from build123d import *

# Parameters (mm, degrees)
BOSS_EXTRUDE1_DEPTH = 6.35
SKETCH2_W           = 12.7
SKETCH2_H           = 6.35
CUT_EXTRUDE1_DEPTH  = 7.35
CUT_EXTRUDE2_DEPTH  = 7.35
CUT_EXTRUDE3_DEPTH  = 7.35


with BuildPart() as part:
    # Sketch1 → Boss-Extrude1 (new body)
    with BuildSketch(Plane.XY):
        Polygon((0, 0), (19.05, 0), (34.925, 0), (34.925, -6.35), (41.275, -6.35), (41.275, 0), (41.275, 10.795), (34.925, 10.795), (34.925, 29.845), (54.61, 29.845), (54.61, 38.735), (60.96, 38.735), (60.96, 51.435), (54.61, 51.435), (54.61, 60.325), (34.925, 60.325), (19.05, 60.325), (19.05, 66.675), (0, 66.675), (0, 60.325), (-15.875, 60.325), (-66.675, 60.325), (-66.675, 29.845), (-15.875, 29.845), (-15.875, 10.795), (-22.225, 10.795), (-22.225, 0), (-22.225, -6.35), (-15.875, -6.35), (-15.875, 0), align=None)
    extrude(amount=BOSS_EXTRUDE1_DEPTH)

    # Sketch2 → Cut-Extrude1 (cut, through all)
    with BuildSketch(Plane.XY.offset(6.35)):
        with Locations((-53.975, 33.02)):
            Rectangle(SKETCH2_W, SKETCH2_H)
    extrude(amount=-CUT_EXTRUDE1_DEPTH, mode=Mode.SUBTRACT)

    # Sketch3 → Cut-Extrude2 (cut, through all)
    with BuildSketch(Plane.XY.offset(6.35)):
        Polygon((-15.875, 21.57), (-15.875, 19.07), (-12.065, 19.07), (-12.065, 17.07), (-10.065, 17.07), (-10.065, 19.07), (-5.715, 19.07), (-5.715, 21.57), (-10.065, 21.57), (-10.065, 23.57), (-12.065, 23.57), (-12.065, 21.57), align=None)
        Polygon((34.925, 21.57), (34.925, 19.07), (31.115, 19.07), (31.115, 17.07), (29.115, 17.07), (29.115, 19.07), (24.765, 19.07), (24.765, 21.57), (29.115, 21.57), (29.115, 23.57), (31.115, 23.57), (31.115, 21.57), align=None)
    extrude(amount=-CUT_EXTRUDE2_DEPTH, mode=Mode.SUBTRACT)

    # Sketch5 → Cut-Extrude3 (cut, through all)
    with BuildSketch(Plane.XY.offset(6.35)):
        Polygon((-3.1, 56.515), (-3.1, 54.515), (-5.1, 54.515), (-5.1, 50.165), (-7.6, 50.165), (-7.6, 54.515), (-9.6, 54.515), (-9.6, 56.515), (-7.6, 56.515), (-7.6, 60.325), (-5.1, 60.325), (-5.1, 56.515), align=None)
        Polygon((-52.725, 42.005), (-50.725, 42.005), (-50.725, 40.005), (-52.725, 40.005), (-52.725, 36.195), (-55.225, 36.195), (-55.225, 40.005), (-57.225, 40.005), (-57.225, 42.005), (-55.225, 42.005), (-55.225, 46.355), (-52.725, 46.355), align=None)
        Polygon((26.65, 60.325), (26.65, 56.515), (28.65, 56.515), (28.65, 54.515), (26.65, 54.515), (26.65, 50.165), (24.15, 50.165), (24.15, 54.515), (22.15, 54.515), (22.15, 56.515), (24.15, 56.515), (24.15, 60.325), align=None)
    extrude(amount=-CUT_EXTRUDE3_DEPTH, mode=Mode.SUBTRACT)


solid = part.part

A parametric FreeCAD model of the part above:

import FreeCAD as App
import Part
import Sketcher
from FreeCAD import Vector
Q = App.Units.Quantity

doc = App.newDocument("Part")
params = doc.addObject("Spreadsheet::Sheet", "Params")
for row, (alias, value) in enumerate([
    ("sketch1_width", "2 in"),
    ("sketch1_width2", "1.4 in"),
    ("sketch1_height", "0.5 in"),
    ("sketch1_height2", "1.2 in"),
    ("sketch1_width3", "0.25 in"),
    ("pad1_length", "0.25 in"),
    ("sketch2_width", "0.5 in"),
    ("sketch2_height", "0.25 in"),
    ("sketch3_width", "0.15 in"),
    ("sketch4_height", "0.15 in"),
], start=1):
    params.set(f"A{row}", alias)
    params.set(f"B{row}", "=" + value)
    params.setAlias(f"B{row}", alias)

body = doc.addObject("PartDesign::Body", "Body")

sketch1 = body.newObject("Sketcher::SketchObject", "Sketch")
sketch1.AttachmentSupport = (doc.getObject("XY_Plane"), [""])
sketch1.MapMode = "FlatFace"
sketch1.addGeometry([
    Part.LineSegment(Vector(35, 0, 0), Vector(35, -6, 0)),
    Part.LineSegment(Vector(35, -6, 0), Vector(41, -6, 0)),
    Part.LineSegment(Vector(41, -6, 0), Vector(41, 11, 0)),
    Part.LineSegment(Vector(41, 11, 0), Vector(35, 11, 0)),
    Part.LineSegment(Vector(35, 11, 0), Vector(35, 30, 0)),
    Part.LineSegment(Vector(35, 30, 0), Vector(55, 30, 0)),
    Part.LineSegment(Vector(55, 30, 0), Vector(55, 39, 0)),
    Part.LineSegment(Vector(55, 39, 0), Vector(61, 39, 0)),
    Part.LineSegment(Vector(61, 39, 0), Vector(61, 51, 0)),
    Part.LineSegment(Vector(61, 51, 0), Vector(55, 51, 0)),
    Part.LineSegment(Vector(55, 51, 0), Vector(55, 60, 0)),
    Part.LineSegment(Vector(55, 60, 0), Vector(19, 60, 0)),
    Part.LineSegment(Vector(19, 60, 0), Vector(19, 67, 0)),
    Part.LineSegment(Vector(19, 67, 0), Vector(0, 67, 0)),
    Part.LineSegment(Vector(0, 67, 0), Vector(0, 60, 0)),
    Part.LineSegment(Vector(0, 60, 0), Vector(-67, 60, 0)),
    Part.LineSegment(Vector(-67, 60, 0), Vector(-67, 30, 0)),
    Part.LineSegment(Vector(-67, 30, 0), Vector(-16, 30, 0)),
    Part.LineSegment(Vector(-16, 30, 0), Vector(-16, 11, 0)),
    Part.LineSegment(Vector(-16, 11, 0), Vector(-22, 11, 0)),
    Part.LineSegment(Vector(-22, 11, 0), Vector(-22, -6, 0)),
    Part.LineSegment(Vector(-22, -6, 0), Vector(-16, -6, 0)),
    Part.LineSegment(Vector(-16, -6, 0), Vector(-16, 0, 0)),
    Part.LineSegment(Vector(-16, 0, 0), Vector(35, 0, 0)),
], False)
sketch1.addConstraint([
    Sketcher.Constraint("Coincident", 0, 2, 1, 1),
    Sketcher.Constraint("Coincident", 1, 2, 2, 1),
    Sketcher.Constraint("Coincident", 2, 2, 3, 1),
    Sketcher.Constraint("Coincident", 3, 2, 4, 1),
    Sketcher.Constraint("Coincident", 4, 2, 5, 1),
    Sketcher.Constraint("Coincident", 5, 2, 6, 1),
    Sketcher.Constraint("Coincident", 6, 2, 7, 1),
    Sketcher.Constraint("Coincident", 7, 2, 8, 1),
    Sketcher.Constraint("Coincident", 8, 2, 9, 1),
    Sketcher.Constraint("Coincident", 9, 2, 10, 1),
    Sketcher.Constraint("Coincident", 10, 2, 11, 1),
    Sketcher.Constraint("Coincident", 11, 2, 12, 1),
    Sketcher.Constraint("Coincident", 12, 2, 13, 1),
    Sketcher.Constraint("Coincident", 13, 2, 14, 1),
    Sketcher.Constraint("Coincident", 14, 2, 15, 1),
    Sketcher.Constraint("Coincident", 15, 2, 16, 1),
    Sketcher.Constraint("Coincident", 16, 2, 17, 1),
    Sketcher.Constraint("Coincident", 17, 2, 18, 1),
    Sketcher.Constraint("Coincident", 18, 2, 19, 1),
    Sketcher.Constraint("Coincident", 19, 2, 20, 1),
    Sketcher.Constraint("Coincident", 20, 2, 21, 1),
    Sketcher.Constraint("Coincident", 21, 2, 22, 1),
    Sketcher.Constraint("Coincident", 22, 2, 23, 1),
    Sketcher.Constraint("Coincident", 23, 2, 0, 1),
    Sketcher.Constraint("Vertical", 0),
    Sketcher.Constraint("Horizontal", 1),
    Sketcher.Constraint("Vertical", 2),
    Sketcher.Constraint("Horizontal", 3),
    Sketcher.Constraint("Vertical", 4),
    Sketcher.Constraint("Horizontal", 5),
    Sketcher.Constraint("Vertical", 6),
    Sketcher.Constraint("Horizontal", 7),
    Sketcher.Constraint("Vertical", 8),
    Sketcher.Constraint("Horizontal", 9),
    Sketcher.Constraint("Vertical", 10),
    Sketcher.Constraint("Horizontal", 11),
    Sketcher.Constraint("Vertical", 12),
    Sketcher.Constraint("Horizontal", 13),
    Sketcher.Constraint("Vertical", 14),
    Sketcher.Constraint("Horizontal", 15),
    Sketcher.Constraint("Vertical", 16),
    Sketcher.Constraint("Horizontal", 17),
    Sketcher.Constraint("Vertical", 18),
    Sketcher.Constraint("Horizontal", 19),
    Sketcher.Constraint("Vertical", 20),
    Sketcher.Constraint("Horizontal", 21),
    Sketcher.Constraint("Vertical", 22),
    Sketcher.Constraint("Horizontal", 23),
    Sketcher.Constraint("PointOnObject", 13, 2, -2),
    Sketcher.Constraint("PointOnObject", 22, 2, -1),
    Sketcher.Constraint("Horizontal", 11, 2, 14, 2),
    Sketcher.Constraint("Horizontal", 5, 2, 16, 2),
    Sketcher.Constraint("Horizontal", 3, 2, 18, 2),
    Sketcher.Constraint("Horizontal", 1, 2, 20, 2),
    Sketcher.Constraint("Vertical", 0, 2, 3, 2),
    Sketcher.Constraint("Vertical", 6, 2, 9, 2),
    Sketcher.Constraint("Vertical", 18, 2, 21, 2),
    Sketcher.Constraint("Equal", 3, 7),
    Sketcher.Constraint("Equal", 9, 19),
    Sketcher.Constraint("Equal", 17, 23),
    Sketcher.Constraint("Equal", 21, 0),
    Sketcher.Constraint("Equal", 13, 4),
    Sketcher.Constraint("Equal", 6, 10),
    Sketcher.Constraint("Equal", 0, 12),
    Sketcher.Constraint("DistanceX", 17, 1, 17, 2, Q("2 in")),
    Sketcher.Constraint("DistanceX", 11, 2, 11, 1, Q("1.4 in")),
    Sketcher.Constraint("DistanceY", 8, 1, 8, 2, Q("0.5 in")),
    Sketcher.Constraint("DistanceY", 16, 2, 16, 1, Q("1.2 in")),
    Sketcher.Constraint("DistanceX", 1, 1, 1, 2, Q("0.25 in")),
    Sketcher.Constraint("DistanceX", 13, 2, 13, 1, Q("0.75 in")),
    Sketcher.Constraint("DistanceX", 5, 1, 5, 2, Q("0.775 in")),
    Sketcher.Constraint("DistanceY", 2, 1, 2, 2, Q("0.675 in")),
])
sketch1.setExpression("Constraints[64]", "Params.sketch1_width")
sketch1.setExpression("Constraints[65]", "Params.sketch1_width2")
sketch1.setExpression("Constraints[66]", "Params.sketch1_height")
sketch1.setExpression("Constraints[67]", "Params.sketch1_height2")
sketch1.setExpression("Constraints[68]", "Params.sketch1_width3")
pad1 = body.newObject("PartDesign::Pad", "Pad")
pad1.Profile = sketch1
pad1.setExpression("Length", "Params.pad1_length")

sketch2 = body.newObject("Sketcher::SketchObject", "Sketch001")
sketch2.AttachmentSupport = (doc.getObject("XY_Plane"), [""])
sketch2.MapMode = "FlatFace"
sketch2.AttachmentOffset = App.Placement(Vector(0, 0, 0.25 * 25.4), App.Rotation())
sketch2.addGeometry([
    Part.LineSegment(Vector(-60, 36, 0), Vector(-60, 30, 0)),
    Part.LineSegment(Vector(-60, 30, 0), Vector(-48, 30, 0)),
    Part.LineSegment(Vector(-48, 30, 0), Vector(-48, 36, 0)),
    Part.LineSegment(Vector(-48, 36, 0), Vector(-60, 36, 0)),
], False)
sketch2.addConstraint([
    Sketcher.Constraint("Coincident", 0, 2, 1, 1),
    Sketcher.Constraint("Coincident", 1, 2, 2, 1),
    Sketcher.Constraint("Coincident", 2, 2, 3, 1),
    Sketcher.Constraint("Coincident", 3, 2, 0, 1),
    Sketcher.Constraint("Vertical", 0),
    Sketcher.Constraint("Horizontal", 1),
    Sketcher.Constraint("Vertical", 2),
    Sketcher.Constraint("Horizontal", 3),
    Sketcher.Constraint("DistanceX", 1, 1, 1, 2, Q("0.5 in")),
    Sketcher.Constraint("DistanceY", 0, 2, 0, 1, Q("0.25 in")),
    Sketcher.Constraint("DistanceX", 0, 2, -1, 1, Q("2.375 in")),
    Sketcher.Constraint("DistanceY", -1, 1, 0, 2, Q("1.175 in")),
])
sketch2.setExpression("Constraints[8]", "Params.sketch2_width")
sketch2.setExpression("Constraints[9]", "Params.sketch2_height")
pocket1 = body.newObject("PartDesign::Pocket", "Pocket")
pocket1.Profile = sketch2
pocket1.Type = "ThroughAll"

sketch3 = body.newObject("Sketcher::SketchObject", "Sketch002")
sketch3.AttachmentSupport = (doc.getObject("XY_Plane"), [""])
sketch3.MapMode = "FlatFace"
sketch3.AttachmentOffset = App.Placement(Vector(0, 0, 0.25 * 25.4), App.Rotation())
sketch3.addGeometry([
    Part.LineSegment(Vector(-15.9, 21.6, 0), Vector(-15.9, 19.1, 0)),
    Part.LineSegment(Vector(-15.9, 19.1, 0), Vector(-12.1, 19.1, 0)),
    Part.LineSegment(Vector(-12.1, 19.1, 0), Vector(-12.1, 17.1, 0)),
    Part.LineSegment(Vector(-12.1, 17.1, 0), Vector(-10.1, 17.1, 0)),
    Part.LineSegment(Vector(-10.1, 17.1, 0), Vector(-10.1, 19.1, 0)),
    Part.LineSegment(Vector(-10.1, 19.1, 0), Vector(-5.7, 19.1, 0)),
    Part.LineSegment(Vector(-5.7, 19.1, 0), Vector(-5.7, 21.6, 0)),
    Part.LineSegment(Vector(-5.7, 21.6, 0), Vector(-10.1, 21.6, 0)),
    Part.LineSegment(Vector(-10.1, 21.6, 0), Vector(-10.1, 23.6, 0)),
    Part.LineSegment(Vector(-10.1, 23.6, 0), Vector(-12.1, 23.6, 0)),
    Part.LineSegment(Vector(-12.1, 23.6, 0), Vector(-12.1, 21.6, 0)),
    Part.LineSegment(Vector(-12.1, 21.6, 0), Vector(-15.9, 21.6, 0)),
    Part.LineSegment(Vector(34.9, 19.1, 0), Vector(34.9, 21.6, 0)),
    Part.LineSegment(Vector(34.9, 21.6, 0), Vector(31.1, 21.6, 0)),
    Part.LineSegment(Vector(31.1, 21.6, 0), Vector(31.1, 23.6, 0)),
    Part.LineSegment(Vector(31.1, 23.6, 0), Vector(29.1, 23.6, 0)),
    Part.LineSegment(Vector(29.1, 23.6, 0), Vector(29.1, 21.6, 0)),
    Part.LineSegment(Vector(29.1, 21.6, 0), Vector(24.8, 21.6, 0)),
    Part.LineSegment(Vector(24.8, 21.6, 0), Vector(24.8, 19.1, 0)),
    Part.LineSegment(Vector(24.8, 19.1, 0), Vector(29.1, 19.1, 0)),
    Part.LineSegment(Vector(29.1, 19.1, 0), Vector(29.1, 17.1, 0)),
    Part.LineSegment(Vector(29.1, 17.1, 0), Vector(31.1, 17.1, 0)),
    Part.LineSegment(Vector(31.1, 17.1, 0), Vector(31.1, 19.1, 0)),
    Part.LineSegment(Vector(31.1, 19.1, 0), Vector(34.9, 19.1, 0)),
], False)
sketch3.addConstraint([
    Sketcher.Constraint("Coincident", 0, 2, 1, 1),
    Sketcher.Constraint("Coincident", 1, 2, 2, 1),
    Sketcher.Constraint("Coincident", 2, 2, 3, 1),
    Sketcher.Constraint("Coincident", 3, 2, 4, 1),
    Sketcher.Constraint("Coincident", 4, 2, 5, 1),
    Sketcher.Constraint("Coincident", 5, 2, 6, 1),
    Sketcher.Constraint("Coincident", 6, 2, 7, 1),
    Sketcher.Constraint("Coincident", 7, 2, 8, 1),
    Sketcher.Constraint("Coincident", 8, 2, 9, 1),
    Sketcher.Constraint("Coincident", 9, 2, 10, 1),
    Sketcher.Constraint("Coincident", 10, 2, 11, 1),
    Sketcher.Constraint("Coincident", 11, 2, 0, 1),
    Sketcher.Constraint("Coincident", 12, 2, 13, 1),
    Sketcher.Constraint("Coincident", 13, 2, 14, 1),
    Sketcher.Constraint("Coincident", 14, 2, 15, 1),
    Sketcher.Constraint("Coincident", 15, 2, 16, 1),
    Sketcher.Constraint("Coincident", 16, 2, 17, 1),
    Sketcher.Constraint("Coincident", 17, 2, 18, 1),
    Sketcher.Constraint("Coincident", 18, 2, 19, 1),
    Sketcher.Constraint("Coincident", 19, 2, 20, 1),
    Sketcher.Constraint("Coincident", 20, 2, 21, 1),
    Sketcher.Constraint("Coincident", 21, 2, 22, 1),
    Sketcher.Constraint("Coincident", 22, 2, 23, 1),
    Sketcher.Constraint("Coincident", 23, 2, 12, 1),
    Sketcher.Constraint("Vertical", 0),
    Sketcher.Constraint("Horizontal", 1),
    Sketcher.Constraint("Vertical", 2),
    Sketcher.Constraint("Horizontal", 3),
    Sketcher.Constraint("Vertical", 4),
    Sketcher.Constraint("Horizontal", 5),
    Sketcher.Constraint("Vertical", 6),
    Sketcher.Constraint("Horizontal", 7),
    Sketcher.Constraint("Vertical", 8),
    Sketcher.Constraint("Horizontal", 9),
    Sketcher.Constraint("Vertical", 10),
    Sketcher.Constraint("Horizontal", 11),
    Sketcher.Constraint("Vertical", 12),
    Sketcher.Constraint("Horizontal", 13),
    Sketcher.Constraint("Vertical", 14),
    Sketcher.Constraint("Horizontal", 15),
    Sketcher.Constraint("Vertical", 16),
    Sketcher.Constraint("Horizontal", 17),
    Sketcher.Constraint("Vertical", 18),
    Sketcher.Constraint("Horizontal", 19),
    Sketcher.Constraint("Vertical", 20),
    Sketcher.Constraint("Horizontal", 21),
    Sketcher.Constraint("Vertical", 22),
    Sketcher.Constraint("Horizontal", 23),
    Sketcher.Constraint("Horizontal", 1, 2, 4, 2),
    Sketcher.Constraint("Horizontal", 7, 2, 10, 2),
    Sketcher.Constraint("Horizontal", 11, 2, 12, 2),
    Sketcher.Constraint("Horizontal", 9, 2, 14, 2),
    Sketcher.Constraint("Horizontal", 13, 2, 16, 2),
    Sketcher.Constraint("Horizontal", 5, 2, 18, 2),
    Sketcher.Constraint("Horizontal", 3, 2, 20, 2),
    Sketcher.Constraint("Horizontal", 19, 2, 22, 2),
    Sketcher.Constraint("Vertical", 4, 2, 7, 2),
    Sketcher.Constraint("Vertical", 2, 2, 9, 2),
    Sketcher.Constraint("Vertical", 16, 2, 19, 2),
    Sketcher.Constraint("Vertical", 14, 2, 21, 2),
    Sketcher.Constraint("Equal", 11, 13),
    Sketcher.Constraint("Equal", 9, 15),
    Sketcher.Constraint("Equal", 7, 17),
    Sketcher.Constraint("Equal", 21, 2),
    Sketcher.Constraint("Equal", 4, 8),
    Sketcher.Constraint("DistanceX", 1, 1, 1, 2, Q("0.15 in")),
    Sketcher.Constraint("DistanceX", 0, 2, 5, 2, Q("0.4 in")),
    Sketcher.Constraint("DistanceX", 6, 2, 12, 2, Q("1.6 in")),
    Sketcher.Constraint("DistanceX", 0, 2, -1, 1, Q("0.625 in")),
    Sketcher.Constraint("DistanceX", 3, 1, 3, 2, 2.0),
    Sketcher.Constraint("DistanceY", 0, 2, 0, 1, 2.5),
    Sketcher.Constraint("DistanceY", -1, 1, 0, 2, 19.07),
])
sketch3.setExpression("Constraints[65]", "Params.sketch3_width")
pocket2 = body.newObject("PartDesign::Pocket", "Pocket001")
pocket2.Profile = sketch3
pocket2.Type = "ThroughAll"

sketch4 = body.newObject("Sketcher::SketchObject", "Sketch003")
sketch4.AttachmentSupport = (doc.getObject("XY_Plane"), [""])
sketch4.MapMode = "FlatFace"
sketch4.AttachmentOffset = App.Placement(Vector(0, 0, 0.25 * 25.4), App.Rotation())
sketch4.addGeometry([
    Part.LineSegment(Vector(-3.1, 54.5, 0), Vector(-3.1, 56.5, 0)),
    Part.LineSegment(Vector(-3.1, 56.5, 0), Vector(-5.1, 56.5, 0)),
    Part.LineSegment(Vector(-5.1, 56.5, 0), Vector(-5.1, 60.3, 0)),
    Part.LineSegment(Vector(-5.1, 60.3, 0), Vector(-7.6, 60.3, 0)),
    Part.LineSegment(Vector(-7.6, 60.3, 0), Vector(-7.6, 56.5, 0)),
    Part.LineSegment(Vector(-7.6, 56.5, 0), Vector(-9.6, 56.5, 0)),
    Part.LineSegment(Vector(-9.6, 56.5, 0), Vector(-9.6, 54.5, 0)),
    Part.LineSegment(Vector(-9.6, 54.5, 0), Vector(-7.6, 54.5, 0)),
    Part.LineSegment(Vector(-7.6, 54.5, 0), Vector(-7.6, 50.2, 0)),
    Part.LineSegment(Vector(-7.6, 50.2, 0), Vector(-5.1, 50.2, 0)),
    Part.LineSegment(Vector(-5.1, 50.2, 0), Vector(-5.1, 54.5, 0)),
    Part.LineSegment(Vector(-5.1, 54.5, 0), Vector(-3.1, 54.5, 0)),
    Part.LineSegment(Vector(-50.7, 42, 0), Vector(-52.7, 42, 0)),
    Part.LineSegment(Vector(-52.7, 42, 0), Vector(-52.7, 46.4, 0)),
    Part.LineSegment(Vector(-52.7, 46.4, 0), Vector(-55.2, 46.4, 0)),
    Part.LineSegment(Vector(-55.2, 46.4, 0), Vector(-55.2, 42, 0)),
    Part.LineSegment(Vector(-55.2, 42, 0), Vector(-57.2, 42, 0)),
    Part.LineSegment(Vector(-57.2, 42, 0), Vector(-57.2, 40, 0)),
    Part.LineSegment(Vector(-57.2, 40, 0), Vector(-55.2, 40, 0)),
    Part.LineSegment(Vector(-55.2, 40, 0), Vector(-55.2, 36.2, 0)),
    Part.LineSegment(Vector(-55.2, 36.2, 0), Vector(-52.7, 36.2, 0)),
    Part.LineSegment(Vector(-52.7, 36.2, 0), Vector(-52.7, 40, 0)),
    Part.LineSegment(Vector(-52.7, 40, 0), Vector(-50.7, 40, 0)),
    Part.LineSegment(Vector(-50.7, 40, 0), Vector(-50.7, 42, 0)),
    Part.LineSegment(Vector(26.6, 56.5, 0), Vector(26.6, 60.3, 0)),
    Part.LineSegment(Vector(26.6, 60.3, 0), Vector(24.1, 60.3, 0)),
    Part.LineSegment(Vector(24.1, 60.3, 0), Vector(24.1, 56.5, 0)),
    Part.LineSegment(Vector(24.1, 56.5, 0), Vector(22.1, 56.5, 0)),
    Part.LineSegment(Vector(22.1, 56.5, 0), Vector(22.1, 54.5, 0)),
    Part.LineSegment(Vector(22.1, 54.5, 0), Vector(24.1, 54.5, 0)),
    Part.LineSegment(Vector(24.1, 54.5, 0), Vector(24.1, 50.2, 0)),
    Part.LineSegment(Vector(24.1, 50.2, 0), Vector(26.6, 50.2, 0)),
    Part.LineSegment(Vector(26.6, 50.2, 0), Vector(26.6, 54.5, 0)),
    Part.LineSegment(Vector(26.6, 54.5, 0), Vector(28.6, 54.5, 0)),
    Part.LineSegment(Vector(28.6, 54.5, 0), Vector(28.6, 56.5, 0)),
    Part.LineSegment(Vector(28.6, 56.5, 0), Vector(26.6, 56.5, 0)),
], False)
sketch4.addConstraint([
    Sketcher.Constraint("Coincident", 0, 2, 1, 1),
    Sketcher.Constraint("Coincident", 1, 2, 2, 1),
    Sketcher.Constraint("Coincident", 2, 2, 3, 1),
    Sketcher.Constraint("Coincident", 3, 2, 4, 1),
    Sketcher.Constraint("Coincident", 4, 2, 5, 1),
    Sketcher.Constraint("Coincident", 5, 2, 6, 1),
    Sketcher.Constraint("Coincident", 6, 2, 7, 1),
    Sketcher.Constraint("Coincident", 7, 2, 8, 1),
    Sketcher.Constraint("Coincident", 8, 2, 9, 1),
    Sketcher.Constraint("Coincident", 9, 2, 10, 1),
    Sketcher.Constraint("Coincident", 10, 2, 11, 1),
    Sketcher.Constraint("Coincident", 11, 2, 0, 1),
    Sketcher.Constraint("Coincident", 12, 2, 13, 1),
    Sketcher.Constraint("Coincident", 13, 2, 14, 1),
    Sketcher.Constraint("Coincident", 14, 2, 15, 1),
    Sketcher.Constraint("Coincident", 15, 2, 16, 1),
    Sketcher.Constraint("Coincident", 16, 2, 17, 1),
    Sketcher.Constraint("Coincident", 17, 2, 18, 1),
    Sketcher.Constraint("Coincident", 18, 2, 19, 1),
    Sketcher.Constraint("Coincident", 19, 2, 20, 1),
    Sketcher.Constraint("Coincident", 20, 2, 21, 1),
    Sketcher.Constraint("Coincident", 21, 2, 22, 1),
    Sketcher.Constraint("Coincident", 22, 2, 23, 1),
    Sketcher.Constraint("Coincident", 23, 2, 12, 1),
    Sketcher.Constraint("Coincident", 24, 2, 25, 1),
    Sketcher.Constraint("Coincident", 25, 2, 26, 1),
    Sketcher.Constraint("Coincident", 26, 2, 27, 1),
    Sketcher.Constraint("Coincident", 27, 2, 28, 1),
    Sketcher.Constraint("Coincident", 28, 2, 29, 1),
    Sketcher.Constraint("Coincident", 29, 2, 30, 1),
    Sketcher.Constraint("Coincident", 30, 2, 31, 1),
    Sketcher.Constraint("Coincident", 31, 2, 32, 1),
    Sketcher.Constraint("Coincident", 32, 2, 33, 1),
    Sketcher.Constraint("Coincident", 33, 2, 34, 1),
    Sketcher.Constraint("Coincident", 34, 2, 35, 1),
    Sketcher.Constraint("Coincident", 35, 2, 24, 1),
    Sketcher.Constraint("Vertical", 0),
    Sketcher.Constraint("Horizontal", 1),
    Sketcher.Constraint("Vertical", 2),
    Sketcher.Constraint("Horizontal", 3),
    Sketcher.Constraint("Vertical", 4),
    Sketcher.Constraint("Horizontal", 5),
    Sketcher.Constraint("Vertical", 6),
    Sketcher.Constraint("Horizontal", 7),
    Sketcher.Constraint("Vertical", 8),
    Sketcher.Constraint("Horizontal", 9),
    Sketcher.Constraint("Vertical", 10),
    Sketcher.Constraint("Horizontal", 11),
    Sketcher.Constraint("Horizontal", 12),
    Sketcher.Constraint("Vertical", 13),
    Sketcher.Constraint("Horizontal", 14),
    Sketcher.Constraint("Vertical", 15),
    Sketcher.Constraint("Horizontal", 16),
    Sketcher.Constraint("Vertical", 17),
    Sketcher.Constraint("Horizontal", 18),
    Sketcher.Constraint("Vertical", 19),
    Sketcher.Constraint("Horizontal", 20),
    Sketcher.Constraint("Vertical", 21),
    Sketcher.Constraint("Horizontal", 22),
    Sketcher.Constraint("Vertical", 23),
    Sketcher.Constraint("Vertical", 24),
    Sketcher.Constraint("Horizontal", 25),
    Sketcher.Constraint("Vertical", 26),
    Sketcher.Constraint("Horizontal", 27),
    Sketcher.Constraint("Vertical", 28),
    Sketcher.Constraint("Horizontal", 29),
    Sketcher.Constraint("Vertical", 30),
    Sketcher.Constraint("Horizontal", 31),
    Sketcher.Constraint("Vertical", 32),
    Sketcher.Constraint("Horizontal", 33),
    Sketcher.Constraint("Vertical", 34),
    Sketcher.Constraint("Horizontal", 35),
    Sketcher.Constraint("Horizontal", 1, 2, 4, 2),
    Sketcher.Constraint("Horizontal", 7, 2, 10, 2),
    Sketcher.Constraint("Horizontal", 12, 2, 15, 2),
    Sketcher.Constraint("Horizontal", 18, 2, 21, 2),
    Sketcher.Constraint("Horizontal", 3, 2, 24, 2),
    Sketcher.Constraint("Horizontal", 5, 2, 26, 2),
    Sketcher.Constraint("Horizontal", 11, 2, 28, 2),
    Sketcher.Constraint("Horizontal", 9, 2, 30, 2),
    Sketcher.Constraint("Horizontal", 29, 2, 32, 2),
    Sketcher.Constraint("Horizontal", 27, 2, 34, 2),
    Sketcher.Constraint("Vertical", 4, 2, 7, 2),
    Sketcher.Constraint("Vertical", 2, 2, 9, 2),
    Sketcher.Constraint("Vertical", 15, 2, 18, 2),
    Sketcher.Constraint("Vertical", 13, 2, 20, 2),
    Sketcher.Constraint("Vertical", 26, 2, 29, 2),
    Sketcher.Constraint("Vertical", 24, 2, 31, 2),
    Sketcher.Constraint("Equal", 1, 5),
    Sketcher.Constraint("Equal", 11, 12),
    Sketcher.Constraint("Equal", 9, 14),
    Sketcher.Constraint("Equal", 12, 16),
    Sketcher.Constraint("Equal", 20, 25),
    Sketcher.Constraint("Equal", 22, 27),
    Sketcher.Constraint("Equal", 29, 33),
    Sketcher.Constraint("Equal", 35, 0),
    Sketcher.Constraint("Equal", 10, 13),
    Sketcher.Constraint("Equal", 6, 17),
    Sketcher.Constraint("Equal", 4, 19),
    Sketcher.Constraint("DistanceY", 2, 1, 2, 2, Q("0.15 in")),
    Sketcher.Constraint("DistanceY", 13, 2, 5, 2, Q("0.4 in")),
    Sketcher.Constraint("DistanceY", 30, 2, 25, 2, Q("0.4 in")),
    Sketcher.Constraint("DistanceX", 2, 2, 24, 2, Q("1.25 in")),
    Sketcher.Constraint("DistanceY", -1, 1, 0, 2, Q("2.225 in")),
    Sketcher.Constraint("DistanceX", 14, 2, 8, 2, Q("1.875 in")),
    Sketcher.Constraint("DistanceX", 1, 2, 1, 1, 2.0),
    Sketcher.Constraint("DistanceX", 3, 2, 3, 1, 2.5),
    Sketcher.Constraint("DistanceX", 0, 2, -1, 1, 3.1),
])
sketch4.setExpression("Constraints[99]", "Params.sketch4_height")
pocket3 = body.newObject("PartDesign::Pocket", "Pocket002")
pocket3.Profile = sketch4
pocket3.Type = "ThroughAll"

doc.recompute()
